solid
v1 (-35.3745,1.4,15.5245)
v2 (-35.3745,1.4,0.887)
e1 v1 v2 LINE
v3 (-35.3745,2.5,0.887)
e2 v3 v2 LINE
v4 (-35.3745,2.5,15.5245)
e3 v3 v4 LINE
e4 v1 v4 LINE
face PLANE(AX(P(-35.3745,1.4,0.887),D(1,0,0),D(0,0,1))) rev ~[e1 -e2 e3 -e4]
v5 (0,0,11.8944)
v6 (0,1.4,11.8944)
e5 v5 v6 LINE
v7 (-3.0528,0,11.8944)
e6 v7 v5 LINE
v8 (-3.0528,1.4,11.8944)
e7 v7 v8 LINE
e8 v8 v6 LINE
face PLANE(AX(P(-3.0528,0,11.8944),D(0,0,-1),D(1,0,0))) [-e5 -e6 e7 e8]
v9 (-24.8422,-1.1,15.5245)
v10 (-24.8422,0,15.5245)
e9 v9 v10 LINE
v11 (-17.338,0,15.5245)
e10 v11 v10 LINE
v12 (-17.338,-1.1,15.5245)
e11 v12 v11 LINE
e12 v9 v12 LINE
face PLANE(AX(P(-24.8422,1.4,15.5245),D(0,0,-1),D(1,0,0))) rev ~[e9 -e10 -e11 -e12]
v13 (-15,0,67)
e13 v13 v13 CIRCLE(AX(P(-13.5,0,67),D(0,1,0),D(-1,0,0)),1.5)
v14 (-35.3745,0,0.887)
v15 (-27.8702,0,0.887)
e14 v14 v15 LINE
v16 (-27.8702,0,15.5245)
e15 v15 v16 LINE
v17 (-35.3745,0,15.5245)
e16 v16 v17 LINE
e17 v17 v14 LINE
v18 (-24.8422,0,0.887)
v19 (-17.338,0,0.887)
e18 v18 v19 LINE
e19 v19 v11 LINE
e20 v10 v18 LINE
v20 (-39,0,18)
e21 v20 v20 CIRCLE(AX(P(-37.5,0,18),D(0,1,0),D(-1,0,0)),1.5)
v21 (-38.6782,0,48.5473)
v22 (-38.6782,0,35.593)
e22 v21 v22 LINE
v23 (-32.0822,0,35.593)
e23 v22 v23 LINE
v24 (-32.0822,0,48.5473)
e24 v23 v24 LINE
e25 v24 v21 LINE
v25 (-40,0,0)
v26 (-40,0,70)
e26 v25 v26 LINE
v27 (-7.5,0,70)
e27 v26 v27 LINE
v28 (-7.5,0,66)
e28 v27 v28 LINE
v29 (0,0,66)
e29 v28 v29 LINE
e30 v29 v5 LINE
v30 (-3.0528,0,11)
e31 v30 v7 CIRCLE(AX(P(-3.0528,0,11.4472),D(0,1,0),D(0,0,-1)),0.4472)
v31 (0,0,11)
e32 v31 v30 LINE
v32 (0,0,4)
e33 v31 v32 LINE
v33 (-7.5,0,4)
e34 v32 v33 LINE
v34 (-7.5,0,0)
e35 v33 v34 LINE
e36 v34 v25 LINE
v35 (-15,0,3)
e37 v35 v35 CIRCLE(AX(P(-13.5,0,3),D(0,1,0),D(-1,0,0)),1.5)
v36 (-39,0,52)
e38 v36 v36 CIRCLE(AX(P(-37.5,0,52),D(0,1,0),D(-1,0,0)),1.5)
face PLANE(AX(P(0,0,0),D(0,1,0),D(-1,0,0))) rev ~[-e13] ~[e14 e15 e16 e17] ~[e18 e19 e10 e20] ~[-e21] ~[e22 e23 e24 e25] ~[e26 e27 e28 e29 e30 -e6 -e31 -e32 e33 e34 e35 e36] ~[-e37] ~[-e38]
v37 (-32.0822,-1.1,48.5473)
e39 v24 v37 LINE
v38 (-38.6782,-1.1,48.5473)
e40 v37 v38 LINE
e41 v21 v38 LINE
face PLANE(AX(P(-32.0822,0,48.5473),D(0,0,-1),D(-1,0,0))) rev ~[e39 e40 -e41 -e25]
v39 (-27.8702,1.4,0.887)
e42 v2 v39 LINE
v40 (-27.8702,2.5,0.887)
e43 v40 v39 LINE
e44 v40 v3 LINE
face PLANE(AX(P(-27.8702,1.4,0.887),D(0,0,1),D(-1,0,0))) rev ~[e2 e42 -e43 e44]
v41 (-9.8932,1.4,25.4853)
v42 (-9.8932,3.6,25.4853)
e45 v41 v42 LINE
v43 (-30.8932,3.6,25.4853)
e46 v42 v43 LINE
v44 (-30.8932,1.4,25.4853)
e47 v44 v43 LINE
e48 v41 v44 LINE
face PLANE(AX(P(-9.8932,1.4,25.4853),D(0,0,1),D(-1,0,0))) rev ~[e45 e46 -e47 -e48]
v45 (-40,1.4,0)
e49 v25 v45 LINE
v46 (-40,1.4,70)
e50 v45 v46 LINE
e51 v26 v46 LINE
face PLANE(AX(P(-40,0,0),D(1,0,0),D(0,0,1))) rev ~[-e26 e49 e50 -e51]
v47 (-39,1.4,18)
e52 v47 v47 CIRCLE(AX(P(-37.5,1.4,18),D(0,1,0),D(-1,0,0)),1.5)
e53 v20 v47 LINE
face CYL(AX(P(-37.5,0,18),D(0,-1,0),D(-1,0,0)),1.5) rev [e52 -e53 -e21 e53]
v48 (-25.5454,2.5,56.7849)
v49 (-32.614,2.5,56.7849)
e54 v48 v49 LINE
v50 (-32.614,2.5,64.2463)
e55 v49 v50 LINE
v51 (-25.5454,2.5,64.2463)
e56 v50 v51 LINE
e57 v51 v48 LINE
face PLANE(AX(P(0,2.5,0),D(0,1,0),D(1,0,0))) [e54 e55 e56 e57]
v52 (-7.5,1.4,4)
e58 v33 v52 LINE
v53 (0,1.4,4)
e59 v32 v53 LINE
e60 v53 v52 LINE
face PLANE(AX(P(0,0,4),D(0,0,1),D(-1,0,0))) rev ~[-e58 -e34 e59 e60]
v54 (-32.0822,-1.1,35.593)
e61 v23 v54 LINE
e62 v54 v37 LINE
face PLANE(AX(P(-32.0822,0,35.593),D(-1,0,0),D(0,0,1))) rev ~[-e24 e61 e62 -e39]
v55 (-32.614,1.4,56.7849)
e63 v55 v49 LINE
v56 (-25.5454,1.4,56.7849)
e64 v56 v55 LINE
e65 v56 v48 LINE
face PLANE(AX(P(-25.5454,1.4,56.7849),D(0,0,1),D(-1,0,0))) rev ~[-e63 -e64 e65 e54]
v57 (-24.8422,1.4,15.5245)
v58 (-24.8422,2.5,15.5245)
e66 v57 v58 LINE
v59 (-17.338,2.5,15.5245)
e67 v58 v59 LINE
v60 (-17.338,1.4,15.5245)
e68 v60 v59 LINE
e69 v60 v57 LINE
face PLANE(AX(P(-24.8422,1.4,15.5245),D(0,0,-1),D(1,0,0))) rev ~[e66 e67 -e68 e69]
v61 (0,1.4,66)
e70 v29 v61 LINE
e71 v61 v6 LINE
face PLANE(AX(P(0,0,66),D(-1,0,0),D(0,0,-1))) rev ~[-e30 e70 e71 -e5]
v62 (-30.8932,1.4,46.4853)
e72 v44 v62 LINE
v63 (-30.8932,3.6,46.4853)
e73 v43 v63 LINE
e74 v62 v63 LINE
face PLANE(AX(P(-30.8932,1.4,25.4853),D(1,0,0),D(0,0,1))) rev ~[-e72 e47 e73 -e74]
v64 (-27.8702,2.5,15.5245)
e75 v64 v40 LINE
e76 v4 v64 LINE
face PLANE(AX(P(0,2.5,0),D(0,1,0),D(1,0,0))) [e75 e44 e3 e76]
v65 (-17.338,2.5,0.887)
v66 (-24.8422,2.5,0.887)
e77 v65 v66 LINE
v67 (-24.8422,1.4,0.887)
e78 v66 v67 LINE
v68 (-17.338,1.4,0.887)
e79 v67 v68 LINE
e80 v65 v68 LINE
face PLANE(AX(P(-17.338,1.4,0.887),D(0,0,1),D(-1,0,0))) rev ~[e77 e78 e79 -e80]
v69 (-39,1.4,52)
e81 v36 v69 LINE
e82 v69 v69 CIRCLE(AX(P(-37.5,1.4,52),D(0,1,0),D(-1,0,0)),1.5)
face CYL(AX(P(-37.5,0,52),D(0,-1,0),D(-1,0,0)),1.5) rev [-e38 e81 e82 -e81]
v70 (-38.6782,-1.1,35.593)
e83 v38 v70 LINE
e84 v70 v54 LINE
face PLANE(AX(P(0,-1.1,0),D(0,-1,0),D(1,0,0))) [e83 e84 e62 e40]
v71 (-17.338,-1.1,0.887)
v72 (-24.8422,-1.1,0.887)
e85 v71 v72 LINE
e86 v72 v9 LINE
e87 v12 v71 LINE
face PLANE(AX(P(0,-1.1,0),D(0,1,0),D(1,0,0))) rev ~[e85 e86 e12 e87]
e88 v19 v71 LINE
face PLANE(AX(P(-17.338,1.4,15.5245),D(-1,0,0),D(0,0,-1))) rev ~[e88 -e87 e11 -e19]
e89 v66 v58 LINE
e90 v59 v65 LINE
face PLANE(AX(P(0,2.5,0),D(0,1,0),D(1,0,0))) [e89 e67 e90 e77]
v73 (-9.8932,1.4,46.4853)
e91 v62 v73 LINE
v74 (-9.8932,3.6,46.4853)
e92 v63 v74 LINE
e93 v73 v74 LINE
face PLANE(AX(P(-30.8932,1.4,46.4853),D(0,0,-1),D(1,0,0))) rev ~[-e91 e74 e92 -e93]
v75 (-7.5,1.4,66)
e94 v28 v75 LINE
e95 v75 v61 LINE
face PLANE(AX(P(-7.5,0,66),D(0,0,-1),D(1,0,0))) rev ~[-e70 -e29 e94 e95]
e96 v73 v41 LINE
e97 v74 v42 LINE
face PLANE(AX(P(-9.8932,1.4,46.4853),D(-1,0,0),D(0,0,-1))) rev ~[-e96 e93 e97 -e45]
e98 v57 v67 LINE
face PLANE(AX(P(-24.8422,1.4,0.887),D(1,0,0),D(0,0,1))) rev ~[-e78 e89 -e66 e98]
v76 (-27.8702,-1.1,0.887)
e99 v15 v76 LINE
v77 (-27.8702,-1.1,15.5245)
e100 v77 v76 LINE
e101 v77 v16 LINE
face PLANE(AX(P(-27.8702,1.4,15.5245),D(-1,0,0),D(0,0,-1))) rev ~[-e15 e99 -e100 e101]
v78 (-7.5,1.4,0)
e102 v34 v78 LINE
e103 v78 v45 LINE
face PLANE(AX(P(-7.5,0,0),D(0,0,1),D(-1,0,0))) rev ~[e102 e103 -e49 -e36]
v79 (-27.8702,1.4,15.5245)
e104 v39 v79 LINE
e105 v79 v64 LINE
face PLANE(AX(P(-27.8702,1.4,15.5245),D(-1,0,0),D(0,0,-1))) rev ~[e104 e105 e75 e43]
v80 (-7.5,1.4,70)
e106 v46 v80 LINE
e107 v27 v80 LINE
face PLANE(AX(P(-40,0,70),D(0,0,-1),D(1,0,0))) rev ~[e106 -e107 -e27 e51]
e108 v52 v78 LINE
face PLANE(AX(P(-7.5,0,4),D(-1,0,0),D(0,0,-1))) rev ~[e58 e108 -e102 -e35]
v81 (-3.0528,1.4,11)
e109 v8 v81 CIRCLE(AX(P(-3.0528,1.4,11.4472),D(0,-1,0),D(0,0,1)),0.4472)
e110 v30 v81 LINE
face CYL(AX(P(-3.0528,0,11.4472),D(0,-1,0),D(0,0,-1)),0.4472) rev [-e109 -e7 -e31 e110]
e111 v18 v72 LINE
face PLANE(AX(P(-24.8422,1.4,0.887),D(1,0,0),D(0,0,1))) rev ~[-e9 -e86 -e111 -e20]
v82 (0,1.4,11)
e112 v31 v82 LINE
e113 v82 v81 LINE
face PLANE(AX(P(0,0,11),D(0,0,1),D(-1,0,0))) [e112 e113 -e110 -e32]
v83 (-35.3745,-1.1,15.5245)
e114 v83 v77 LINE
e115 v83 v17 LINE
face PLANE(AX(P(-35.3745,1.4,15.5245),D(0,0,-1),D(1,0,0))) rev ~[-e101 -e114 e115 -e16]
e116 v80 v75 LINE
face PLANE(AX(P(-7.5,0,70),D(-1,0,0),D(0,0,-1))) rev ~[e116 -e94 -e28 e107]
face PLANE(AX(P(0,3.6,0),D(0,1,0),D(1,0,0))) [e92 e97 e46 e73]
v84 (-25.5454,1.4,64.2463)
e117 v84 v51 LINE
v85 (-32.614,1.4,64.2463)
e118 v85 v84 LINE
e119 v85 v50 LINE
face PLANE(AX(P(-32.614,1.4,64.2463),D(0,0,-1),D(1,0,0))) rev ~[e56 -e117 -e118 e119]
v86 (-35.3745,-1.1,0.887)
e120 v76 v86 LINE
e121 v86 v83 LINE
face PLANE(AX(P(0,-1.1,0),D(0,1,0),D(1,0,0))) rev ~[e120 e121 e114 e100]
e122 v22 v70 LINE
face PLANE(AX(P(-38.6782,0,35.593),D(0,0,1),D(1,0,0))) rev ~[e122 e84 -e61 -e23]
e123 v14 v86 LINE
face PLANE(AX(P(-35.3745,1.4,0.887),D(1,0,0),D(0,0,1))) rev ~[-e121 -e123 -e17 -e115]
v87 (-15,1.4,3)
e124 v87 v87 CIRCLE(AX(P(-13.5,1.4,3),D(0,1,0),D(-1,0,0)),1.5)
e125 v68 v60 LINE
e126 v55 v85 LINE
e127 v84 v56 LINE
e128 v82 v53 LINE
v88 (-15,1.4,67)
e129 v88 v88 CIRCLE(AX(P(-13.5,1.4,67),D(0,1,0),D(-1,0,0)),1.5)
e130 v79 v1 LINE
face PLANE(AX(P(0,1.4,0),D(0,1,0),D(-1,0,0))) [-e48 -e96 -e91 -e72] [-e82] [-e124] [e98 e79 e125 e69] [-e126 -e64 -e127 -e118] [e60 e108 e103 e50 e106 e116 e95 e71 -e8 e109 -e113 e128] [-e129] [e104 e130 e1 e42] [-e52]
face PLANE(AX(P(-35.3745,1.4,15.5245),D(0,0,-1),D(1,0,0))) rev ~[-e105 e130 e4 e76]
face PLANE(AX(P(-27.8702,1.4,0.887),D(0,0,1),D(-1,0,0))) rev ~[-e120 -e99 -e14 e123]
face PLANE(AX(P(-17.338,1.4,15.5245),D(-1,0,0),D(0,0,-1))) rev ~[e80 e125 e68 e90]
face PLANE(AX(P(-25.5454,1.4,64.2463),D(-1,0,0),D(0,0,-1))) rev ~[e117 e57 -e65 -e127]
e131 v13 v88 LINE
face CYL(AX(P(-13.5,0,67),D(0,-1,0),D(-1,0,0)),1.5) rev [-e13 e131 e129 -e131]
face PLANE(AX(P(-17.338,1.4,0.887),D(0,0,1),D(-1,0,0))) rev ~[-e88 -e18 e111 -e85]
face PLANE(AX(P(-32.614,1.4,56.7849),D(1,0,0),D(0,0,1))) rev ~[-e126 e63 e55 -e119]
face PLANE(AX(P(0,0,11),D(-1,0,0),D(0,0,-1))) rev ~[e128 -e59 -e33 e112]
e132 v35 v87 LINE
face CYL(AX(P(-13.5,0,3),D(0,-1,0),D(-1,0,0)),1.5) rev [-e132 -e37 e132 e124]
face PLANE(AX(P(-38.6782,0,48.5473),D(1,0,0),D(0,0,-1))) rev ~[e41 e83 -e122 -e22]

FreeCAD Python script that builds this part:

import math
import FreeCAD as App
import Part
import Sketcher
from FreeCAD import Vector

doc = App.newDocument("Part")
body = doc.addObject("PartDesign::Body", "Body")

sketch1 = doc.addObject("Sketcher::SketchObject", "Sketch")
body.addObject(sketch1)
sketch1.AttachmentSupport = (doc.XZ_Plane, [""])
sketch1.MapMode = "FlatFace"
sketch1.addGeometry([
    Part.LineSegment(Vector(-40, 0, 0), Vector(-40, 70, 0)),
    Part.LineSegment(Vector(-40, 70, 0), Vector(-7.5, 70, 0)),
    Part.LineSegment(Vector(-7.5, 70, 0), Vector(-7.5, 66, 0)),
    Part.LineSegment(Vector(-7.5, 66, 0), Vector(0, 66, 0)),
    Part.LineSegment(Vector(0, 66, 0), Vector(0, 11.89, 0)),
    Part.LineSegment(Vector(0, 11.89, 0), Vector(-3.05, 11.89, 0)),
    Part.ArcOfCircle(Part.Circle(Vector(-3.05, 11.45, 0), Vector(0, 0, 1), 0.45), math.radians(90), math.radians(270)),
    Part.LineSegment(Vector(-3.05, 11, 0), Vector(0, 11, 0)),
    Part.LineSegment(Vector(0, 11, 0), Vector(0, 4, 0)),
    Part.LineSegment(Vector(0, 4, 0), Vector(-7.5, 4, 0)),
    Part.LineSegment(Vector(-7.5, 4, 0), Vector(-7.5, 0, 0)),
    Part.LineSegment(Vector(-7.5, 0, 0), Vector(-40, 0, 0)),
    Part.Circle(Vector(-13.5, 3, 0), Vector(0, 0, 1), 1.5),
    Part.Circle(Vector(-37.5, 18, 0), Vector(0, 0, 1), 1.5),
    Part.Circle(Vector(-13.5, 67, 0), Vector(0, 0, 1), 1.5),
    Part.Circle(Vector(-37.5, 52, 0), Vector(0, 0, 1), 1.5),
], False)
sketch1.addConstraint([
    Sketcher.Constraint("Coincident", 0, 2, 1, 1),
    Sketcher.Constraint("Coincident", 1, 2, 2, 1),
    Sketcher.Constraint("Coincident", 2, 2, 3, 1),
    Sketcher.Constraint("Coincident", 3, 2, 4, 1),
    Sketcher.Constraint("Coincident", 4, 2, 5, 1),
    Sketcher.Constraint("Tangent", 5, 2, 6, 1),
    Sketcher.Constraint("Tangent", 6, 2, 7, 1),
    Sketcher.Constraint("Coincident", 7, 2, 8, 1),
    Sketcher.Constraint("Coincident", 8, 2, 9, 1),
    Sketcher.Constraint("Coincident", 9, 2, 10, 1),
    Sketcher.Constraint("Coincident", 10, 2, 11, 1),
    Sketcher.Constraint("Coincident", 11, 2, 0, 1),
    Sketcher.Constraint("Vertical", 0),
    Sketcher.Constraint("Horizontal", 1),
    Sketcher.Constraint("Vertical", 2),
    Sketcher.Constraint("Horizontal", 3),
    Sketcher.Constraint("Vertical", 4),
    Sketcher.Constraint("Horizontal", 5),
    Sketcher.Constraint("Horizontal", 7),
    Sketcher.Constraint("Vertical", 8),
    Sketcher.Constraint("Horizontal", 9),
    Sketcher.Constraint("Vertical", 10),
    Sketcher.Constraint("Horizontal", 11),
    Sketcher.Constraint("Equal", 12, 13),
    Sketcher.Constraint("Equal", 13, 14),
    Sketcher.Constraint("Equal", 14, 15),
    Sketcher.Constraint("PointOnObject", 3, 2, -2),
    Sketcher.Constraint("PointOnObject", 7, 2, -2),
    Sketcher.Constraint("PointOnObject", 10, 2, -1),
    Sketcher.Constraint("Vertical", 12, 3, 14, 3),
    Sketcher.Constraint("Vertical", 13, 3, 15, 3),
    Sketcher.Constraint("Vertical", 2, 2, 9, 2),
    Sketcher.Constraint("Equal", 2, 10),
    Sketcher.Constraint("Diameter", 12, 3.0),
    Sketcher.Constraint("DistanceY", 0, 1, 0, 2, 70.0),
    Sketcher.Constraint("DistanceY", 2, 2, 2, 1, 4.0),
    Sketcher.Constraint("DistanceX", 3, 1, 3, 2, 7.5),
    Sketcher.Constraint("DistanceY", -1, 1, 12, 3, 3.0),
    Sketcher.Constraint("DistanceY", -1, 1, 13, 3, 18.0),
    Sketcher.Constraint("DistanceX", 0, 2, -1, 1, 40.0),
    Sketcher.Constraint("DistanceY", -1, 1, 6, 2, 11.0),
    Sketcher.Constraint("DistanceY", 15, 3, 0, 2, 18.0),
    Sketcher.Constraint("DistanceY", 14, 3, 0, 2, 3.0),
    Sketcher.Constraint("DistanceX", 12, 3, -1, 1, 13.5),
    Sketcher.Constraint("DistanceX", 0, 2, 15, 3, 2.5),
    Sketcher.Constraint("Radius", 6, 0.4472),
    Sketcher.Constraint("DistanceX", 5, 2, 5, 1, 3.0528),
])
pad1 = doc.addObject("PartDesign::Pad", "Pad")
body.addObject(pad1)
pad1.Profile = sketch1
pad1.Length = 1.4
pad1.Reversed = True

sketch2 = doc.addObject("Sketcher::SketchObject", "Sketch001")
body.addObject(sketch2)
sketch2.AttachmentSupport = (doc.XZ_Plane, [""])
sketch2.MapMode = "FlatFace"
sketch2.AttachmentOffset = App.Placement(Vector(0, 0, -1.4), App.Rotation())
sketch2.addGeometry([
    Part.LineSegment(Vector(-31, 25, 0), Vector(-31, 46, 0)),
    Part.LineSegment(Vector(-31, 46, 0), Vector(-10, 46, 0)),
    Part.LineSegment(Vector(-10, 46, 0), Vector(-10, 25, 0)),
    Part.LineSegment(Vector(-10, 25, 0), Vector(-31, 25, 0)),
], False)
sketch2.addConstraint([
    Sketcher.Constraint("Coincident", 0, 2, 1, 1),
    Sketcher.Constraint("Coincident", 1, 2, 2, 1),
    Sketcher.Constraint("Coincident", 2, 2, 3, 1),
    Sketcher.Constraint("Coincident", 3, 2, 0, 1),
    Sketcher.Constraint("Vertical", 0),
    Sketcher.Constraint("Horizontal", 1),
    Sketcher.Constraint("Vertical", 2),
    Sketcher.Constraint("Horizontal", 3),
    Sketcher.Constraint("Equal", 3, 0),
    Sketcher.Constraint("DistanceX", 1, 1, 1, 2, 21.0),
    Sketcher.Constraint("DistanceX", 0, 2, -1, 1, 30.8932),
    Sketcher.Constraint("DistanceY", -1, 1, 0, 2, 46.4853),
])
pad2 = doc.addObject("PartDesign::Pad", "Pad001")
body.addObject(pad2)
pad2.Profile = sketch2
pad2.Length = 2.2
pad2.Reversed = True

sketch3 = doc.addObject("Sketcher::SketchObject", "Sketch002")
body.addObject(sketch3)
sketch3.AttachmentSupport = (doc.XZ_Plane, [""])
sketch3.MapMode = "FlatFace"
sketch3.AttachmentOffset = App.Placement(Vector(0, 0, -1.4), App.Rotation())
sketch3.addGeometry([
    Part.LineSegment(Vector(-35, 1, 0), Vector(-35, 16, 0)),
    Part.LineSegment(Vector(-35, 16, 0), Vector(-28, 16, 0)),
    Part.LineSegment(Vector(-28, 16, 0), Vector(-28, 1, 0)),
    Part.LineSegment(Vector(-28, 1, 0), Vector(-35, 1, 0)),
    Part.LineSegment(Vector(-25, 1, 0), Vector(-25, 16, 0)),
    Part.LineSegment(Vector(-25, 16, 0), Vector(-17, 16, 0)),
    Part.LineSegment(Vector(-17, 16, 0), Vector(-17, 1, 0)),
    Part.LineSegment(Vector(-17, 1, 0), Vector(-25, 1, 0)),
], False)
sketch3.addConstraint([
    Sketcher.Constraint("Coincident", 0, 2, 1, 1),
    Sketcher.Constraint("Coincident", 1, 2, 2, 1),
    Sketcher.Constraint("Coincident", 2, 2, 3, 1),
    Sketcher.Constraint("Coincident", 3, 2, 0, 1),
    Sketcher.Constraint("Coincident", 4, 2, 5, 1),
    Sketcher.Constraint("Coincident", 5, 2, 6, 1),
    Sketcher.Constraint("Coincident", 6, 2, 7, 1),
    Sketcher.Constraint("Coincident", 7, 2, 4, 1),
    Sketcher.Constraint("Vertical", 0),
    Sketcher.Constraint("Horizontal", 1),
    Sketcher.Constraint("Vertical", 2),
    Sketcher.Constraint("Horizontal", 3),
    Sketcher.Constraint("Vertical", 4),
    Sketcher.Constraint("Horizontal", 5),
    Sketcher.Constraint("Vertical", 6),
    Sketcher.Constraint("Horizontal", 7),
    Sketcher.Constraint("Horizontal", 1, 2, 4, 2),
    Sketcher.Constraint("Horizontal", 3, 2, 6, 2),
    Sketcher.Constraint("Equal", 3, 5),
    Sketcher.Constraint("DistanceX", 1, 1, 1, 2, 7.5043),
    Sketcher.Constraint("DistanceY", 0, 1, 0, 2, 14.6375),
    Sketcher.Constraint("DistanceY", -1, 1, 2, 2, 0.887),
    Sketcher.Constraint("DistanceX", 5, 2, -1, 1, 17.338),
    Sketcher.Constraint("DistanceX", 1, 2, 4, 2, 3.028),
])
pad3 = doc.addObject("PartDesign::Pad", "Pad002")
body.addObject(pad3)
pad3.Profile = sketch3
pad3.Type = "TwoLengths"
pad3.Length = 1.1
pad3.Length2 = 2.5
pad3.Reversed = True

sketch4 = doc.addObject("Sketcher::SketchObject", "Sketch003")
body.addObject(sketch4)
sketch4.AttachmentSupport = (doc.XZ_Plane, [""])
sketch4.MapMode = "FlatFace"
sketch4.AttachmentOffset = App.Placement(Vector(0, 0, -1.4), App.Rotation())
sketch4.addGeometry([
    Part.LineSegment(Vector(-33, 57, 0), Vector(-33, 64, 0)),
    Part.LineSegment(Vector(-33, 64, 0), Vector(-26, 64, 0)),
    Part.LineSegment(Vector(-26, 64, 0), Vector(-26, 57, 0)),
    Part.LineSegment(Vector(-26, 57, 0), Vector(-33, 57, 0)),
], False)
sketch4.addConstraint([
    Sketcher.Constraint("Coincident", 0, 2, 1, 1),
    Sketcher.Constraint("Coincident", 1, 2, 2, 1),
    Sketcher.Constraint("Coincident", 2, 2, 3, 1),
    Sketcher.Constraint("Coincident", 3, 2, 0, 1),
    Sketcher.Constraint("Vertical", 0),
    Sketcher.Constraint("Horizontal", 1),
    Sketcher.Constraint("Vertical", 2),
    Sketcher.Constraint("Horizontal", 3),
    Sketcher.Constraint("DistanceX", 1, 1, 1, 2, 7.0686),
    Sketcher.Constraint("DistanceY", 0, 1, 0, 2, 7.4614),
    Sketcher.Constraint("DistanceX", 0, 2, -1, 1, 32.614),
    Sketcher.Constraint("DistanceY", -1, 1, 2, 2, 56.785),
])
pad4 = doc.addObject("PartDesign::Pad", "Pad003")
body.addObject(pad4)
pad4.Profile = sketch4
pad4.Length = 1.1
pad4.Reversed = True

sketch5 = doc.addObject("Sketcher::SketchObject", "Sketch004")
body.addObject(sketch5)
sketch5.AttachmentSupport = (doc.XZ_Plane, [""])
sketch5.MapMode = "FlatFace"
sketch5.addGeometry([
    Part.LineSegment(Vector(-39, 49, 0), Vector(-39, 36, 0)),
    Part.LineSegment(Vector(-39, 36, 0), Vector(-32, 36, 0)),
    Part.LineSegment(Vector(-32, 36, 0), Vector(-32, 49, 0)),
    Part.LineSegment(Vector(-32, 49, 0), Vector(-39, 49, 0)),
], False)
sketch5.addConstraint([
    Sketcher.Constraint("Coincident", 0, 2, 1, 1),
    Sketcher.Constraint("Coincident", 1, 2, 2, 1),
    Sketcher.Constraint("Coincident", 2, 2, 3, 1),
    Sketcher.Constraint("Coincident", 3, 2, 0, 1),
    Sketcher.Constraint("Vertical", 0),
    Sketcher.Constraint("Horizontal", 1),
    Sketcher.Constraint("Vertical", 2),
    Sketcher.Constraint("Horizontal", 3),
    Sketcher.Constraint("DistanceX", 1, 1, 1, 2, 6.596),
    Sketcher.Constraint("DistanceY", 0, 2, 0, 1, 12.9543),
    Sketcher.Constraint("DistanceY", -1, 1, 0, 2, 35.593),
    Sketcher.Constraint("DistanceX", 0, 2, -1, 1, 38.6782),
])
pad5 = doc.addObject("PartDesign::Pad", "Pad004")
body.addObject(pad5)
pad5.Profile = sketch5
pad5.Length = 1.1

doc.recompute()
